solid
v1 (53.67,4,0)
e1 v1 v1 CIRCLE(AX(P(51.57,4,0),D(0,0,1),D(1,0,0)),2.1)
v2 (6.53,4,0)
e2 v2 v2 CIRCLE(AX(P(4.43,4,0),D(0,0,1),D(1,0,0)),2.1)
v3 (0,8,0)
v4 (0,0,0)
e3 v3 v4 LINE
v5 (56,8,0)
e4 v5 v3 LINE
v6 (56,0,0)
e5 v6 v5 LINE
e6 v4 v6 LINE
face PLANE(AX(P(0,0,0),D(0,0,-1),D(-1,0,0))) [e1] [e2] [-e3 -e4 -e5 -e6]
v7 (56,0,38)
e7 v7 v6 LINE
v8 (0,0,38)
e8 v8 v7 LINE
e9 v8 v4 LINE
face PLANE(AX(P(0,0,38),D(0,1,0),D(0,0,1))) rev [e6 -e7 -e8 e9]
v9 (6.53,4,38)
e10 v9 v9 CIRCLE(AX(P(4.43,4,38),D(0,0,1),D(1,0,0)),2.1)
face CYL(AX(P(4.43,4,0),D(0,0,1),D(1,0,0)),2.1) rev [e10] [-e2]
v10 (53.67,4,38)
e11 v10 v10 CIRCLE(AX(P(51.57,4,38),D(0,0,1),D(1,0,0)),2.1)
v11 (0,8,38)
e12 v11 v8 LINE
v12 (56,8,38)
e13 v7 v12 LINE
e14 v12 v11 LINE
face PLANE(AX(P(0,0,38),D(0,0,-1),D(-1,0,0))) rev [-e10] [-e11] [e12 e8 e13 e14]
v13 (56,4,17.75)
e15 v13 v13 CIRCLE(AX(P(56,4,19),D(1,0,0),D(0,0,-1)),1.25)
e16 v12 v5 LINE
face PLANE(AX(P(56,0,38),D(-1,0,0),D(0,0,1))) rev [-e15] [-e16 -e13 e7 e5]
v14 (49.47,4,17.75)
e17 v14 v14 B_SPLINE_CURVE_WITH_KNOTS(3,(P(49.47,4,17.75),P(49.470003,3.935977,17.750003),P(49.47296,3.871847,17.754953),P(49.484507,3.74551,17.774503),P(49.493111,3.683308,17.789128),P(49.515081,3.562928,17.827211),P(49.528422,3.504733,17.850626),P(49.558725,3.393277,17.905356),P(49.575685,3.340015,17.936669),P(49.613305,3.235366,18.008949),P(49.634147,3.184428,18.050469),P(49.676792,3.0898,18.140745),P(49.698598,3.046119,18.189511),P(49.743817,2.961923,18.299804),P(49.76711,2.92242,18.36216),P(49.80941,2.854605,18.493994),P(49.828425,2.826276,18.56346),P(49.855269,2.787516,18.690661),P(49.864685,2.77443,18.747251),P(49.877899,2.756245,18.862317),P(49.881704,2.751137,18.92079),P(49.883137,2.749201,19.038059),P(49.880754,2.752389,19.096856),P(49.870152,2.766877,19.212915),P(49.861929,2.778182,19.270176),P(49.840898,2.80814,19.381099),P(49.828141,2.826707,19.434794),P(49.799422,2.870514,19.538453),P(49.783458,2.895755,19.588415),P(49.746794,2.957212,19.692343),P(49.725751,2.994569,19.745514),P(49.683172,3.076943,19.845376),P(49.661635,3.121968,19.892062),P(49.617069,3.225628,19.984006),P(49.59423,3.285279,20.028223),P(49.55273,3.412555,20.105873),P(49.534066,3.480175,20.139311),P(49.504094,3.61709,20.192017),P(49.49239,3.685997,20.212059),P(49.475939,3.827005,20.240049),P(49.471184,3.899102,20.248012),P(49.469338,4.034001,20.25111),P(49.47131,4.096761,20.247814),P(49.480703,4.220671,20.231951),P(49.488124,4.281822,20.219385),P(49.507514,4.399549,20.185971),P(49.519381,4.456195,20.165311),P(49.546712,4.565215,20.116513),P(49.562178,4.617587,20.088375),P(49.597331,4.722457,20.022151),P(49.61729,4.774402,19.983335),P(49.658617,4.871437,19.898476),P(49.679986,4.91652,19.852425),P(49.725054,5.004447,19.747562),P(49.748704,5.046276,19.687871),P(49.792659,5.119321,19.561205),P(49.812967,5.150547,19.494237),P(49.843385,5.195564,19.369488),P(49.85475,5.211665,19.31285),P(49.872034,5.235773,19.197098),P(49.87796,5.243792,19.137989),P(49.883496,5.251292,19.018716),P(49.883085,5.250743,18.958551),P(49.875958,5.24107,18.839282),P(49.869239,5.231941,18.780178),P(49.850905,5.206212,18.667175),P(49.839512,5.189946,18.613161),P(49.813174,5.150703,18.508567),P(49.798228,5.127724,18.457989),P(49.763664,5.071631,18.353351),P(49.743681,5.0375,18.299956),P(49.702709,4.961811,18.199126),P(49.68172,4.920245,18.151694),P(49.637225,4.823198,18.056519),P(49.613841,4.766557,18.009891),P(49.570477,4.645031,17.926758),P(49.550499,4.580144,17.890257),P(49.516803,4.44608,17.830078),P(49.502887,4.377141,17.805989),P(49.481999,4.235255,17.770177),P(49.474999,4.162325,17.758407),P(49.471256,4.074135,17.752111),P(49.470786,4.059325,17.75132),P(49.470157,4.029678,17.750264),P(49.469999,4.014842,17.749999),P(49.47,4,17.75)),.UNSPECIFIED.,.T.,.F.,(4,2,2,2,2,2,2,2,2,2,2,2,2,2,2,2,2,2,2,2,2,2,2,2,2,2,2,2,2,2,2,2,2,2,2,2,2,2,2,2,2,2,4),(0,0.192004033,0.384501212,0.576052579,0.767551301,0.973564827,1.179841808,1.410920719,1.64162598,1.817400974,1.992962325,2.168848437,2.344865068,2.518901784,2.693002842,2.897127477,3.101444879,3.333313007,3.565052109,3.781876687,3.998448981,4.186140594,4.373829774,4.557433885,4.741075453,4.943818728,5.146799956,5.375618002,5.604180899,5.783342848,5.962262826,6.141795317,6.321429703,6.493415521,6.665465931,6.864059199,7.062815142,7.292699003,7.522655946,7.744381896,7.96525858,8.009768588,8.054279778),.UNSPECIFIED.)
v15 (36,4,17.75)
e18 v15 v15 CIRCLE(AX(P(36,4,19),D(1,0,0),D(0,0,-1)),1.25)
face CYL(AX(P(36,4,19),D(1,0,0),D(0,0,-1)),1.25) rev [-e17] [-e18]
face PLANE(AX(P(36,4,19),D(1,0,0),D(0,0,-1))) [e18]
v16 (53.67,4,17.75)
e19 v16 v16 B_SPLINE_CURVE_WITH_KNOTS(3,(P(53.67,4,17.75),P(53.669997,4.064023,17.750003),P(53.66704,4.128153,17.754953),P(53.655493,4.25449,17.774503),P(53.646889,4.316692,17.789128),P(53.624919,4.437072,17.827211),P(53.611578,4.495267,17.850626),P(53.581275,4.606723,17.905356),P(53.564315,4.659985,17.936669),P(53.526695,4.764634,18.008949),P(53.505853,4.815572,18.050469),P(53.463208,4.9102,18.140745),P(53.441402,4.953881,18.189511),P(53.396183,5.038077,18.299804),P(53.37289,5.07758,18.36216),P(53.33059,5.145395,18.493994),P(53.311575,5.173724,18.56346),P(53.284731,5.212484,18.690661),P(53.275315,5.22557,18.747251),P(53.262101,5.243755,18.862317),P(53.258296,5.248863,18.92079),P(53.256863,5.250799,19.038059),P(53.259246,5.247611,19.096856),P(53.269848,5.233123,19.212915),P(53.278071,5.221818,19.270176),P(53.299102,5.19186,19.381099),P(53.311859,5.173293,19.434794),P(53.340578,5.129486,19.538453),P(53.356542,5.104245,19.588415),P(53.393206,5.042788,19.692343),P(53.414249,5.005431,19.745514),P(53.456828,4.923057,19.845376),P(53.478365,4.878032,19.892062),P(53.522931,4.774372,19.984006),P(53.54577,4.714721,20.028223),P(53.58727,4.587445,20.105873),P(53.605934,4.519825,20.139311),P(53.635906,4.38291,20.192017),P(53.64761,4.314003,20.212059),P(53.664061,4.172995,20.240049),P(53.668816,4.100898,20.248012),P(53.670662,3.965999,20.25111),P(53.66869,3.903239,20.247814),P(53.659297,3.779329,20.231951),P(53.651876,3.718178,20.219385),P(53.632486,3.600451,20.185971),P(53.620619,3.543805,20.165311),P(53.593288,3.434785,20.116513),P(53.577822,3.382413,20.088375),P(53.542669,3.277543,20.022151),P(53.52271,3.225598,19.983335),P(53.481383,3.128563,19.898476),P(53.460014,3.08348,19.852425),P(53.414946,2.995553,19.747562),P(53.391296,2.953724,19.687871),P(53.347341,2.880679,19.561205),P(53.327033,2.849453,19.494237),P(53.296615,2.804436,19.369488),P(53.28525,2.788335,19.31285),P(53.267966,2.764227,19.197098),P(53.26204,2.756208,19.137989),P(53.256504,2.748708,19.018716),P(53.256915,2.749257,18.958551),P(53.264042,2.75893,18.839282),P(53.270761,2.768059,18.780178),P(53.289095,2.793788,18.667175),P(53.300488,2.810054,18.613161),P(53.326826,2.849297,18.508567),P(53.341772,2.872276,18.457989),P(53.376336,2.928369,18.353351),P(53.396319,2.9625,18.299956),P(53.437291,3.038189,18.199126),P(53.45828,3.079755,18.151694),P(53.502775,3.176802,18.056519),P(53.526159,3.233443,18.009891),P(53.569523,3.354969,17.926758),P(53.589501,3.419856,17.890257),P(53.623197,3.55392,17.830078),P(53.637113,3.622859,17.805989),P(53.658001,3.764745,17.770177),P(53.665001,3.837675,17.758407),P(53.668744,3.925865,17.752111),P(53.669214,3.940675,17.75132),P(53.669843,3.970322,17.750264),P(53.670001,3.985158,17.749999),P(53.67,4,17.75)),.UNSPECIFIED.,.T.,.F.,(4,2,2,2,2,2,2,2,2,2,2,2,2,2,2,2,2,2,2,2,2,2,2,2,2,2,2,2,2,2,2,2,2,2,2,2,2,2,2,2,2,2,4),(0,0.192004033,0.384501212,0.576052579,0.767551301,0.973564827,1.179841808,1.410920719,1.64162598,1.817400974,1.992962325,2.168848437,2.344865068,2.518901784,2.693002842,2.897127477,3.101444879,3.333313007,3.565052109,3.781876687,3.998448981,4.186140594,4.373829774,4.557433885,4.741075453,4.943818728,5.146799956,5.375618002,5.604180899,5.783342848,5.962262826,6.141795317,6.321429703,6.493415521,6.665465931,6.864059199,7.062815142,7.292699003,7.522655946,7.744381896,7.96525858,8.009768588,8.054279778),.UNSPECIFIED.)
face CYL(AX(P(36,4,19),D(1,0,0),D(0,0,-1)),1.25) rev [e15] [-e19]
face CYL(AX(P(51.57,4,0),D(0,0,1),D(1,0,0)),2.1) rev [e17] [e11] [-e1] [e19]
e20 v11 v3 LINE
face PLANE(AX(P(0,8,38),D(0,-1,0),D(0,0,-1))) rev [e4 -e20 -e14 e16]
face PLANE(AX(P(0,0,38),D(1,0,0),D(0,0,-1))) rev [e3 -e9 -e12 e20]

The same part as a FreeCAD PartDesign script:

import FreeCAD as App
import Part
import Sketcher
from FreeCAD import Vector

doc = App.newDocument("Part")
params = doc.addObject("Spreadsheet::Sheet", "Params")
for row, (alias, value) in enumerate([
    ("sketch1_width", "56 mm"),
    ("sketch1_height", "8 mm"),
    ("pad1_length", "38 mm"),
    ("sketch2_diameter", "4.2 mm"),
    ("sketch3_diameter", "2.5 mm"),
    ("pocket2_length", "20 mm"),
], start=1):
    params.set(f"A{row}", alias)
    params.set(f"B{row}", "=" + value)
    params.setAlias(f"B{row}", alias)

body = doc.addObject("PartDesign::Body", "Body")

# Sketch on XY plane
sketch1 = doc.addObject("Sketcher::SketchObject", "Sketch")
body.addObject(sketch1)
sketch1.AttachmentSupport = (doc.XY_Plane, [""])
sketch1.MapMode = "FlatFace"
sketch1.addGeometry(Part.LineSegment(Vector(0, 8, 0), Vector(0, 0, 0)), False)
sketch1.addGeometry(Part.LineSegment(Vector(0, 0, 0), Vector(56, 0, 0)), False)
sketch1.addGeometry(Part.LineSegment(Vector(56, 0, 0), Vector(56, 8, 0)), False)
sketch1.addGeometry(Part.LineSegment(Vector(56, 8, 0), Vector(0, 8, 0)), False)
sketch1.addConstraint(Sketcher.Constraint("Coincident", 0, 2, 1, 1))
sketch1.addConstraint(Sketcher.Constraint("Coincident", 1, 2, 2, 1))
sketch1.addConstraint(Sketcher.Constraint("Coincident", 2, 2, 3, 1))
sketch1.addConstraint(Sketcher.Constraint("Coincident", 3, 2, 0, 1))
sketch1.addConstraint(Sketcher.Constraint("Vertical", 0))
sketch1.addConstraint(Sketcher.Constraint("Horizontal", 1))
sketch1.addConstraint(Sketcher.Constraint("Vertical", 2))
sketch1.addConstraint(Sketcher.Constraint("Horizontal", 3))
sketch1.addConstraint(Sketcher.Constraint("Coincident", 0, 2, -1, 1))
sketch1.addConstraint(Sketcher.Constraint("DistanceX", 1, 1, 1, 2, 56.0))
sketch1.addConstraint(Sketcher.Constraint("DistanceY", 0, 2, 0, 1, 8.0))
sketch1.setExpression("Constraints[9]", "Params.sketch1_width")
sketch1.setExpression("Constraints[10]", "Params.sketch1_height")
pad1 = doc.addObject("PartDesign::Pad", "Pad")
body.addObject(pad1)
pad1.Profile = sketch1
pad1.setExpression("Length", "Params.pad1_length")

# Sketch on XY plane
sketch2 = doc.addObject("Sketcher::SketchObject", "Sketch001")
body.addObject(sketch2)
sketch2.AttachmentSupport = (doc.XY_Plane, [""])
sketch2.MapMode = "FlatFace"
sketch2.AttachmentOffset = App.Placement(Vector(0, 0, 38), App.Rotation())
sketch2.addGeometry(Part.Circle(Vector(4.4, 4, 0), Vector(0, 0, 1), 2.1), False)
sketch2.addGeometry(Part.Circle(Vector(51.6, 4, 0), Vector(0, 0, 1), 2.1), False)
sketch2.addConstraint(Sketcher.Constraint("Equal", 0, 1))
sketch2.addConstraint(Sketcher.Constraint("Horizontal", 0, 3, 1, 3))
sketch2.addConstraint(Sketcher.Constraint("Diameter", 0, 4.2))
sketch2.addConstraint(Sketcher.Constraint("DistanceY", -1, 1, 0, 3, 4.0))
sketch2.addConstraint(Sketcher.Constraint("DistanceX", -1, 1, 0, 3, 4.43))
sketch2.addConstraint(Sketcher.Constraint("DistanceX", -1, 1, 1, 3, 51.57))
sketch2.setExpression("Constraints[2]", "Params.sketch2_diameter")
pocket1 = doc.addObject("PartDesign::Pocket", "Pocket")
body.addObject(pocket1)
pocket1.Profile = sketch2
pocket1.Type = "ThroughAll"

# Sketch on YZ plane
sketch3 = doc.addObject("Sketcher::SketchObject", "Sketch002")
body.addObject(sketch3)
sketch3.AttachmentSupport = (doc.YZ_Plane, [""])
sketch3.MapMode = "FlatFace"
sketch3.AttachmentOffset = App.Placement(Vector(0, 0, 56), App.Rotation())
sketch3.addGeometry(Part.Circle(Vector(4, 19, 0), Vector(0, 0, 1), 1.2), False)
sketch3.addConstraint(Sketcher.Constraint("Diameter", 0, 2.5))
sketch3.addConstraint(Sketcher.Constraint("DistanceX", -1, 1, 0, 3, 4.0))
sketch3.addConstraint(Sketcher.Constraint("DistanceY", -1, 1, 0, 3, 19.0))
sketch3.setExpression("Constraints[0]", "Params.sketch3_diameter")
pocket2 = doc.addObject("PartDesign::Pocket", "Pocket001")
body.addObject(pocket2)
pocket2.Profile = sketch3
pocket2.setExpression("Length", "Params.pocket2_length")

doc.recompute()
